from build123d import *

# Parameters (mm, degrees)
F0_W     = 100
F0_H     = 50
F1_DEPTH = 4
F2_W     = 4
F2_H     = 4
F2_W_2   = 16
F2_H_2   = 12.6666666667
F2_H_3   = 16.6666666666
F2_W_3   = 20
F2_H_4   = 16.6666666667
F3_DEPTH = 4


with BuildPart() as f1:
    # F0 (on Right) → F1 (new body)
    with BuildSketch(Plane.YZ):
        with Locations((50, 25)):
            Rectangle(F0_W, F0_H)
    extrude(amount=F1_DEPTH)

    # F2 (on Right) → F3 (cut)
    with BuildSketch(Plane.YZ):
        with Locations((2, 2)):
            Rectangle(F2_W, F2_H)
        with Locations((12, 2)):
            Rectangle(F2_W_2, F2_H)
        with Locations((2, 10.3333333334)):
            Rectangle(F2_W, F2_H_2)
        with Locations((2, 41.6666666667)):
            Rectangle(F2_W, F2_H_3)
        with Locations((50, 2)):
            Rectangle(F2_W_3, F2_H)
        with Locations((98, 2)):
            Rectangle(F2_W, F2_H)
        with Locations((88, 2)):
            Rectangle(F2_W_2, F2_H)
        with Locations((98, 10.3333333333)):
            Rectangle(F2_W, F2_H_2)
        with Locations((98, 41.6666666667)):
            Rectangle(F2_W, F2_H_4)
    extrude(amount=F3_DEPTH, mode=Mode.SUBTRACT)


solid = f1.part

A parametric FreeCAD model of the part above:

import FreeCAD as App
import Part
import Sketcher

V = App.Vector
Q = App.Units.Quantity

doc = App.newDocument("Part")
params = doc.addObject("Spreadsheet::Sheet", "Params")
for row, (alias, value) in enumerate([
    ("sketch1_width", "100 mm"),
    ("sketch1_height", "50 mm"),
    ("pad1_length", "4 mm"),
    ("sketch2_width", "20 mm"),
    ("sketch2_width2", "16 mm"),
    ("pocket1_length", "4 mm"),
], start=1):
    params.set(f"A{row}", alias)
    params.set(f"B{row}", "=" + value)
    params.setAlias(f"B{row}", alias)

body = doc.addObject("PartDesign::Body", "Body")

sketch1 = body.newObject("Sketcher::SketchObject", "Sketch")
sketch1.AttachmentSupport = (doc.getObject("YZ_Plane"), [""])
sketch1.MapMode = "FlatFace"
sketch1.addGeometry(Part.LineSegment(V(0, 50, 0), V(0, 0, 0)), False)
sketch1.addGeometry(Part.LineSegment(V(0, 0, 0), V(100, 0, 0)), False)
sketch1.addGeometry(Part.LineSegment(V(100, 0, 0), V(100, 50, 0)), False)
sketch1.addGeometry(Part.LineSegment(V(100, 50, 0), V(0, 50, 0)), False)
sketch1.addConstraint(Sketcher.Constraint("Coincident", 0, 2, 1, 1))
sketch1.addConstraint(Sketcher.Constraint("Coincident", 1, 2, 2, 1))
sketch1.addConstraint(Sketcher.Constraint("Coincident", 2, 2, 3, 1))
sketch1.addConstraint(Sketcher.Constraint("Coincident", 3, 2, 0, 1))
sketch1.addConstraint(Sketcher.Constraint("Vertical", 0))
sketch1.addConstraint(Sketcher.Constraint("Horizontal", 1))
sketch1.addConstraint(Sketcher.Constraint("Vertical", 2))
sketch1.addConstraint(Sketcher.Constraint("Horizontal", 3))
sketch1.addConstraint(Sketcher.Constraint("Coincident", 0, 2, -1, 1))
sketch1.addConstraint(Sketcher.Constraint("DistanceX", 1, 1, 1, 2, Q("100 mm")))
sketch1.addConstraint(Sketcher.Constraint("DistanceY", 0, 2, 0, 1, Q("50 mm")))
sketch1.setExpression("Constraints[9]", "Params.sketch1_width")
sketch1.setExpression("Constraints[10]", "Params.sketch1_height")
pad1 = body.newObject("PartDesign::Pad", "Pad")
pad1.Profile = sketch1
pad1.setExpression("Length", "Params.pad1_length")

sketch2 = body.newObject("Sketcher::SketchObject", "Sketch001")
sketch2.AttachmentSupport = (doc.getObject("YZ_Plane"), [""])
sketch2.MapMode = "FlatFace"
sketch2.addGeometry(Part.LineSegment(V(0, 0, 0), V(20, 0, 0)), False)
sketch2.addGeometry(Part.LineSegment(V(20, 0, 0), V(20, 4, 0)), False)
sketch2.addGeometry(Part.LineSegment(V(20, 4, 0), V(4, 4, 0)), False)
sketch2.addGeometry(Part.LineSegment(V(4, 4, 0), V(4, 16.7, 0)), False)
sketch2.addGeometry(Part.LineSegment(V(4, 16.7, 0), V(0, 16.7, 0)), False)
sketch2.addGeometry(Part.LineSegment(V(0, 16.7, 0), V(0, 0, 0)), False)
sketch2.addGeometry(Part.LineSegment(V(0, 50, 0), V(0, 33.3, 0)), False)
sketch2.addGeometry(Part.LineSegment(V(0, 33.3, 0), V(4, 33.3, 0)), False)
sketch2.addGeometry(Part.LineSegment(V(4, 33.3, 0), V(4, 50, 0)), False)
sketch2.addGeometry(Part.LineSegment(V(4, 50, 0), V(0, 50, 0)), False)
sketch2.addGeometry(Part.LineSegment(V(40, 4, 0), V(40, 0, 0)), False)
sketch2.addGeometry(Part.LineSegment(V(40, 0, 0), V(60, 0, 0)), False)
sketch2.addGeometry(Part.LineSegment(V(60, 0, 0), V(60, 4, 0)), False)
sketch2.addGeometry(Part.LineSegment(V(60, 4, 0), V(40, 4, 0)), False)
sketch2.addGeometry(Part.LineSegment(V(100, 0, 0), V(100, 16.7, 0)), False)
sketch2.addGeometry(Part.LineSegment(V(100, 16.7, 0), V(96, 16.7, 0)), False)
sketch2.addGeometry(Part.LineSegment(V(96, 16.7, 0), V(96, 4, 0)), False)
sketch2.addGeometry(Part.LineSegment(V(96, 4, 0), V(80, 4, 0)), False)
sketch2.addGeometry(Part.LineSegment(V(80, 4, 0), V(80, 0, 0)), False)
sketch2.addGeometry(Part.LineSegment(V(80, 0, 0), V(100, 0, 0)), False)
sketch2.addGeometry(Part.LineSegment(V(96, 50, 0), V(96, 33.3, 0)), False)
sketch2.addGeometry(Part.LineSegment(V(96, 33.3, 0), V(100, 33.3, 0)), False)
sketch2.addGeometry(Part.LineSegment(V(100, 33.3, 0), V(100, 50, 0)), False)
sketch2.addGeometry(Part.LineSegment(V(100, 50, 0), V(96, 50, 0)), False)
sketch2.addConstraint(Sketcher.Constraint("Coincident", 0, 2, 1, 1))
sketch2.addConstraint(Sketcher.Constraint("Coincident", 1, 2, 2, 1))
sketch2.addConstraint(Sketcher.Constraint("Coincident", 2, 2, 3, 1))
sketch2.addConstraint(Sketcher.Constraint("Coincident", 3, 2, 4, 1))
sketch2.addConstraint(Sketcher.Constraint("Coincident", 4, 2, 5, 1))
sketch2.addConstraint(Sketcher.Constraint("Coincident", 5, 2, 0, 1))
sketch2.addConstraint(Sketcher.Constraint("Coincident", 6, 2, 7, 1))
sketch2.addConstraint(Sketcher.Constraint("Coincident", 7, 2, 8, 1))
sketch2.addConstraint(Sketcher.Constraint("Coincident", 8, 2, 9, 1))
sketch2.addConstraint(Sketcher.Constraint("Coincident", 9, 2, 6, 1))
sketch2.addConstraint(Sketcher.Constraint("Coincident", 10, 2, 11, 1))
sketch2.addConstraint(Sketcher.Constraint("Coincident", 11, 2, 12, 1))
sketch2.addConstraint(Sketcher.Constraint("Coincident", 12, 2, 13, 1))
sketch2.addConstraint(Sketcher.Constraint("Coincident", 13, 2, 10, 1))
sketch2.addConstraint(Sketcher.Constraint("Coincident", 14, 2, 15, 1))
sketch2.addConstraint(Sketcher.Constraint("Coincident", 15, 2, 16, 1))
sketch2.addConstraint(Sketcher.Constraint("Coincident", 16, 2, 17, 1))
sketch2.addConstraint(Sketcher.Constraint("Coincident", 17, 2, 18, 1))
sketch2.addConstraint(Sketcher.Constraint("Coincident", 18, 2, 19, 1))
sketch2.addConstraint(Sketcher.Constraint("Coincident", 19, 2, 14, 1))
sketch2.addConstraint(Sketcher.Constraint("Coincident", 20, 2, 21, 1))
sketch2.addConstraint(Sketcher.Constraint("Coincident", 21, 2, 22, 1))
sketch2.addConstraint(Sketcher.Constraint("Coincident", 22, 2, 23, 1))
sketch2.addConstraint(Sketcher.Constraint("Coincident", 23, 2, 20, 1))
sketch2.addConstraint(Sketcher.Constraint("Horizontal", 0))
sketch2.addConstraint(Sketcher.Constraint("Vertical", 1))
sketch2.addConstraint(Sketcher.Constraint("Horizontal", 2))
sketch2.addConstraint(Sketcher.Constraint("Vertical", 3))
sketch2.addConstraint(Sketcher.Constraint("Horizontal", 4))
sketch2.addConstraint(Sketcher.Constraint("Vertical", 5))
sketch2.addConstraint(Sketcher.Constraint("Vertical", 6))
sketch2.addConstraint(Sketcher.Constraint("Horizontal", 7))
sketch2.addConstraint(Sketcher.Constraint("Vertical", 8))
sketch2.addConstraint(Sketcher.Constraint("Horizontal", 9))
sketch2.addConstraint(Sketcher.Constraint("Vertical", 10))
sketch2.addConstraint(Sketcher.Constraint("Horizontal", 11))
sketch2.addConstraint(Sketcher.Constraint("Vertical", 12))
sketch2.addConstraint(Sketcher.Constraint("Horizontal", 13))
sketch2.addConstraint(Sketcher.Constraint("Vertical", 14))
sketch2.addConstraint(Sketcher.Constraint("Horizontal", 15))
sketch2.addConstraint(Sketcher.Constraint("Vertical", 16))
sketch2.addConstraint(Sketcher.Constraint("Horizontal", 17))
sketch2.addConstraint(Sketcher.Constraint("Vertical", 18))
sketch2.addConstraint(Sketcher.Constraint("Horizontal", 19))
sketch2.addConstraint(Sketcher.Constraint("Vertical", 20))
sketch2.addConstraint(Sketcher.Constraint("Horizontal", 21))
sketch2.addConstraint(Sketcher.Constraint("Vertical", 22))
sketch2.addConstraint(Sketcher.Constraint("Horizontal", 23))
sketch2.addConstraint(Sketcher.Constraint("Coincident", 5, 2, -1, 1))
sketch2.addConstraint(Sketcher.Constraint("PointOnObject", 6, 2, -2))
sketch2.addConstraint(Sketcher.Constraint("PointOnObject", 10, 2, -1))
sketch2.addConstraint(Sketcher.Constraint("PointOnObject", 18, 2, -1))
sketch2.addConstraint(Sketcher.Constraint("Horizontal", 2, 2, 12, 2))
sketch2.addConstraint(Sketcher.Constraint("Horizontal", 4, 2, 14, 2))
sketch2.addConstraint(Sketcher.Constraint("Horizontal", 13, 2, 16, 2))
sketch2.addConstraint(Sketcher.Constraint("Horizontal", 7, 2, 20, 2))
sketch2.addConstraint(Sketcher.Constraint("Horizontal", 9, 2, 22, 2))
sketch2.addConstraint(Sketcher.Constraint("Vertical", 3, 2, 7, 2))
sketch2.addConstraint(Sketcher.Constraint("Vertical", 16, 2, 20, 2))
sketch2.addConstraint(Sketcher.Constraint("Vertical", 19, 2, 21, 2))
sketch2.addConstraint(Sketcher.Constraint("Equal", 0, 11))
sketch2.addConstraint(Sketcher.Constraint("Equal", 9, 15))
sketch2.addConstraint(Sketcher.Constraint("Equal", 2, 17))
sketch2.addConstraint(Sketcher.Constraint("Equal", 23, 1))
sketch2.addConstraint(Sketcher.Constraint("Equal", 5, 6))
sketch2.addConstraint(Sketcher.Constraint("DistanceX", 0, 1, 0, 2, Q("20 mm")))
sketch2.addConstraint(Sketcher.Constraint("DistanceX", 2, 2, 2, 1, Q("16 mm")))
sketch2.addConstraint(Sketcher.Constraint("DistanceY", -1, 1, 8, 2, Q("50 mm")))
sketch2.addConstraint(Sketcher.Constraint("DistanceX", -1, 1, 10, 2, Q("40 mm")))
sketch2.addConstraint(Sketcher.Constraint("DistanceX", -1, 1, 14, 2, Q("100 mm")))
sketch2.addConstraint(Sketcher.Constraint("DistanceY", 3, 1, 3, 2, Q("12.666667 mm")))
sketch2.setExpression("Constraints[65]", "Params.sketch2_width")
sketch2.setExpression("Constraints[66]", "Params.sketch2_width2")
pocket1 = body.newObject("PartDesign::Pocket", "Pocket")
pocket1.Profile = sketch2
pocket1.setExpression("Length", "Params.pocket1_length")
pocket1.Reversed = True

doc.recompute()
